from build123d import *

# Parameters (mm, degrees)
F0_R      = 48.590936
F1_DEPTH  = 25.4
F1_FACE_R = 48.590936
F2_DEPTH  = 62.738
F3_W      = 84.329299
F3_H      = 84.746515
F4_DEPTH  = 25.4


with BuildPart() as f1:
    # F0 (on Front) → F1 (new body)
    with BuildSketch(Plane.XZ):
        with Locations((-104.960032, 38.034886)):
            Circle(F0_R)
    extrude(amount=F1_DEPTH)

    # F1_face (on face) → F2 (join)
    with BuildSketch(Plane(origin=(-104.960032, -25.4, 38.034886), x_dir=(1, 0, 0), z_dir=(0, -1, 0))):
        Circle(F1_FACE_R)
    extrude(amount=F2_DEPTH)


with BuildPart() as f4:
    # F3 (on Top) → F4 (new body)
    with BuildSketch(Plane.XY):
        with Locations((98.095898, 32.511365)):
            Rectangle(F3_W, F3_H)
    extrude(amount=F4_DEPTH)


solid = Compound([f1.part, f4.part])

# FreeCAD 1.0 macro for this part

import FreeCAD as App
import Part
import Sketcher
from FreeCAD import Vector
Q = App.Units.Quantity

doc = App.newDocument("Part")
body = doc.addObject("PartDesign::Body", "Body")

sketch1 = body.newObject("Sketcher::SketchObject", "Sketch")
sketch1.AttachmentSupport = (doc.getObject("XZ_Plane"), [""])
sketch1.MapMode = "FlatFace"
sketch1.addGeometry(Part.Circle(Vector(-104.960032, 38.034886, 0), Vector(0, 0, 1), 48.590936), False)
sketch1.addConstraint([
    Sketcher.Constraint("Diameter", 0, Q("97.181872 mm")),
    Sketcher.Constraint("DistanceX", 0, 3, -1, 1, Q("104.960032 mm")),
    Sketcher.Constraint("DistanceY", -1, 1, 0, 3, Q("38.034886 mm")),
])
pad1 = body.newObject("PartDesign::Pad", "Pad")
pad1.Profile = sketch1
pad1.Length = Q("1 in")

sketch2 = body.newObject("Sketcher::SketchObject", "Sketch001")
sketch2.AttachmentSupport = (doc.getObject("XZ_Plane"), [""])
sketch2.MapMode = "FlatFace"
sketch2.AttachmentOffset = App.Placement(Vector(0, 0, 1 * 25.4), App.Rotation())
sketch2.addGeometry(Part.Circle(Vector(-104.960032, 38.034886, 0), Vector(0, 0, 1), 48.590936), False)
sketch2.addConstraint([
    Sketcher.Constraint("Diameter", 0, Q("97.181872 mm")),
    Sketcher.Constraint("DistanceX", 0, 3, -1, 1, Q("104.960032 mm")),
    Sketcher.Constraint("DistanceY", -1, 1, 0, 3, Q("38.034886 mm")),
])
pad2 = body.newObject("PartDesign::Pad", "Pad001")
pad2.Profile = sketch2
pad2.Length = Q("2.47 in")
body2 = doc.addObject("PartDesign::Body", "Body001")

sketch3 = body2.newObject("Sketcher::SketchObject", "Sketch002")
sketch3.AttachmentSupport = (doc.getObject("XY_Plane001"), [""])
sketch3.MapMode = "FlatFace"
sketch3.addGeometry([
    Part.LineSegment(Vector(55.931249, 74.884623, 0), Vector(55.931249, -9.861892, 0)),
    Part.LineSegment(Vector(55.931249, -9.861892, 0), Vector(140.260548, -9.861892, 0)),
    Part.LineSegment(Vector(140.260548, -9.861892, 0), Vector(140.260548, 74.884623, 0)),
    Part.LineSegment(Vector(140.260548, 74.884623, 0), Vector(55.931249, 74.884623, 0)),
], False)
sketch3.addConstraint([
    Sketcher.Constraint("Coincident", 0, 2, 1, 1),
    Sketcher.Constraint("Coincident", 1, 2, 2, 1),
    Sketcher.Constraint("Coincident", 2, 2, 3, 1),
    Sketcher.Constraint("Coincident", 3, 2, 0, 1),
    Sketcher.Constraint("Vertical", 0),
    Sketcher.Constraint("Horizontal", 1),
    Sketcher.Constraint("Vertical", 2),
    Sketcher.Constraint("Horizontal", 3),
    Sketcher.Constraint("DistanceX", 1, 1, 1, 2, Q("84.329299 mm")),
    Sketcher.Constraint("DistanceY", 0, 2, 0, 1, Q("84.746515 mm")),
    Sketcher.Constraint("DistanceX", -1, 1, 0, 2, Q("55.931249 mm")),
    Sketcher.Constraint("DistanceY", 0, 2, -1, 1, Q("9.861892 mm")),
])
pad3 = body2.newObject("PartDesign::Pad", "Pad002")
pad3.Profile = sketch3
pad3.Length = Q("1 in")

doc.recompute()
